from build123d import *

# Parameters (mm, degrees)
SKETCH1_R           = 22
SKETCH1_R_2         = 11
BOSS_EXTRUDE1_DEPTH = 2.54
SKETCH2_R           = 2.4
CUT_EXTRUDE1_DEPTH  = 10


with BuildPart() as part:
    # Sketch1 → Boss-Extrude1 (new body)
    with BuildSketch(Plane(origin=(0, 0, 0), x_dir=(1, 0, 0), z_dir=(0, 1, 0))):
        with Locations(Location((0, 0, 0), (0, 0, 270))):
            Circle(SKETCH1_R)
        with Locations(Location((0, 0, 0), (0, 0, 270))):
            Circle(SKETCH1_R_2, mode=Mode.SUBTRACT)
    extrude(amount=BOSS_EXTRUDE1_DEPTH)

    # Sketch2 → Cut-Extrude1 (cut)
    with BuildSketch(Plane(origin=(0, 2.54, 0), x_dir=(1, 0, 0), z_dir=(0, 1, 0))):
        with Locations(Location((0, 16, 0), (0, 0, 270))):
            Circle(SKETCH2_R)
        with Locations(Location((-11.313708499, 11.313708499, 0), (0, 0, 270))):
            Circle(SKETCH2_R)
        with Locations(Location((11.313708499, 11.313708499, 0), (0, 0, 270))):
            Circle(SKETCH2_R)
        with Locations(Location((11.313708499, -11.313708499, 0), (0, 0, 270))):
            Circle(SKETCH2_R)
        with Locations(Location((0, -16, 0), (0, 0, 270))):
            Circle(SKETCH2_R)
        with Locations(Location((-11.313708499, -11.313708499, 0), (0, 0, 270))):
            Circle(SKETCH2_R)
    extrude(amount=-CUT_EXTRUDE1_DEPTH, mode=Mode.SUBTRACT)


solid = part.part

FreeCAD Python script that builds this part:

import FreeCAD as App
import Part
import Sketcher

V = App.Vector
Q = App.Units.Quantity

doc = App.newDocument("Part")
params = doc.addObject("Spreadsheet::Sheet", "Params")
for row, (alias, value) in enumerate([
    ("sketch1_diameter", "44 mm"),
    ("sketch1_diameter2", "22 mm"),
    ("pad1_length", "2.54 mm"),
    ("sketch2_diameter", "4.8 mm"),
    ("pocket1_length", "10 mm"),
], start=1):
    params.set(f"A{row}", alias)
    params.set(f"B{row}", "=" + value)
    params.setAlias(f"B{row}", alias)

body = doc.addObject("PartDesign::Body", "Body")

# Sketch on XZ plane
sketch1 = body.newObject("Sketcher::SketchObject", "Sketch")
sketch1.AttachmentSupport = (doc.getObject("XZ_Plane"), [""])
sketch1.MapMode = "FlatFace"
sketch1.addGeometry(Part.Circle(V(0, 0, 0), V(0, 0, 1), 22), False)
sketch1.addGeometry(Part.Circle(V(0, 0, 0), V(0, 0, 1), 11), False)
sketch1.addConstraint(Sketcher.Constraint("Coincident", 0, 3, -1, 1))
sketch1.addConstraint(Sketcher.Constraint("Coincident", 1, 3, -1, 1))
sketch1.addConstraint(Sketcher.Constraint("Diameter", 0, Q("44 mm")))
sketch1.addConstraint(Sketcher.Constraint("Diameter", 1, Q("22 mm")))
sketch1.setExpression("Constraints[2]", "Params.sketch1_diameter")
sketch1.setExpression("Constraints[3]", "Params.sketch1_diameter2")
pad1 = body.newObject("PartDesign::Pad", "Pad")
pad1.Profile = sketch1
pad1.setExpression("Length", "Params.pad1_length")
pad1.Reversed = True

# Sketch on XZ plane
sketch2 = body.newObject("Sketcher::SketchObject", "Sketch001")
sketch2.AttachmentSupport = (doc.getObject("XZ_Plane"), [""])
sketch2.MapMode = "FlatFace"
sketch2.AttachmentOffset = App.Placement(V(0, 0, -2.54), App.Rotation())
sketch2.addGeometry(Part.Circle(V(0, -16, 0), V(0, 0, 1), 2.4), False)
sketch2.addGeometry(Part.Circle(V(-11.3, -11.3, 0), V(0, 0, 1), 2.4), False)
sketch2.addGeometry(Part.Circle(V(11.3, -11.3, 0), V(0, 0, 1), 2.4), False)
sketch2.addGeometry(Part.Circle(V(11.3, 11.3, 0), V(0, 0, 1), 2.4), False)
sketch2.addGeometry(Part.Circle(V(0, 16, 0), V(0, 0, 1), 2.4), False)
sketch2.addGeometry(Part.Circle(V(-11.3, 11.3, 0), V(0, 0, 1), 2.4), False)
sketch2.addConstraint(Sketcher.Constraint("Equal", 0, 1))
sketch2.addConstraint(Sketcher.Constraint("Equal", 1, 2))
sketch2.addConstraint(Sketcher.Constraint("Equal", 2, 3))
sketch2.addConstraint(Sketcher.Constraint("Equal", 3, 4))
sketch2.addConstraint(Sketcher.Constraint("Equal", 4, 5))
sketch2.addConstraint(Sketcher.Constraint("Symmetric", 1, 3, 3, 3, -1, 1))
sketch2.addConstraint(Sketcher.Constraint("Symmetric", 0, 3, 4, 3, -1, 1))
sketch2.addConstraint(Sketcher.Constraint("Symmetric", 2, 3, 5, 3, -1, 1))
sketch2.addConstraint(Sketcher.Constraint("Symmetric", 1, 3, 2, 3, -2))
sketch2.addConstraint(Sketcher.Constraint("PointOnObject", 0, 3, -2))
sketch2.addConstraint(Sketcher.Constraint("Diameter", 0, Q("4.8 mm")))
sketch2.addConstraint(Sketcher.Constraint("DistanceY", 0, 3, -1, 1, Q("16 mm")))
sketch2.addConstraint(Sketcher.Constraint("DistanceX", 1, 3, -1, 1, Q("11.313708 mm")))
sketch2.addConstraint(Sketcher.Constraint("DistanceY", 1, 3, -1, 1, Q("11.313708 mm")))
sketch2.setExpression("Constraints[10]", "Params.sketch2_diameter")
pocket1 = body.newObject("PartDesign::Pocket", "Pocket")
pocket1.Profile = sketch2
pocket1.setExpression("Length", "Params.pocket1_length")
pocket1.Reversed = True

doc.recompute()
